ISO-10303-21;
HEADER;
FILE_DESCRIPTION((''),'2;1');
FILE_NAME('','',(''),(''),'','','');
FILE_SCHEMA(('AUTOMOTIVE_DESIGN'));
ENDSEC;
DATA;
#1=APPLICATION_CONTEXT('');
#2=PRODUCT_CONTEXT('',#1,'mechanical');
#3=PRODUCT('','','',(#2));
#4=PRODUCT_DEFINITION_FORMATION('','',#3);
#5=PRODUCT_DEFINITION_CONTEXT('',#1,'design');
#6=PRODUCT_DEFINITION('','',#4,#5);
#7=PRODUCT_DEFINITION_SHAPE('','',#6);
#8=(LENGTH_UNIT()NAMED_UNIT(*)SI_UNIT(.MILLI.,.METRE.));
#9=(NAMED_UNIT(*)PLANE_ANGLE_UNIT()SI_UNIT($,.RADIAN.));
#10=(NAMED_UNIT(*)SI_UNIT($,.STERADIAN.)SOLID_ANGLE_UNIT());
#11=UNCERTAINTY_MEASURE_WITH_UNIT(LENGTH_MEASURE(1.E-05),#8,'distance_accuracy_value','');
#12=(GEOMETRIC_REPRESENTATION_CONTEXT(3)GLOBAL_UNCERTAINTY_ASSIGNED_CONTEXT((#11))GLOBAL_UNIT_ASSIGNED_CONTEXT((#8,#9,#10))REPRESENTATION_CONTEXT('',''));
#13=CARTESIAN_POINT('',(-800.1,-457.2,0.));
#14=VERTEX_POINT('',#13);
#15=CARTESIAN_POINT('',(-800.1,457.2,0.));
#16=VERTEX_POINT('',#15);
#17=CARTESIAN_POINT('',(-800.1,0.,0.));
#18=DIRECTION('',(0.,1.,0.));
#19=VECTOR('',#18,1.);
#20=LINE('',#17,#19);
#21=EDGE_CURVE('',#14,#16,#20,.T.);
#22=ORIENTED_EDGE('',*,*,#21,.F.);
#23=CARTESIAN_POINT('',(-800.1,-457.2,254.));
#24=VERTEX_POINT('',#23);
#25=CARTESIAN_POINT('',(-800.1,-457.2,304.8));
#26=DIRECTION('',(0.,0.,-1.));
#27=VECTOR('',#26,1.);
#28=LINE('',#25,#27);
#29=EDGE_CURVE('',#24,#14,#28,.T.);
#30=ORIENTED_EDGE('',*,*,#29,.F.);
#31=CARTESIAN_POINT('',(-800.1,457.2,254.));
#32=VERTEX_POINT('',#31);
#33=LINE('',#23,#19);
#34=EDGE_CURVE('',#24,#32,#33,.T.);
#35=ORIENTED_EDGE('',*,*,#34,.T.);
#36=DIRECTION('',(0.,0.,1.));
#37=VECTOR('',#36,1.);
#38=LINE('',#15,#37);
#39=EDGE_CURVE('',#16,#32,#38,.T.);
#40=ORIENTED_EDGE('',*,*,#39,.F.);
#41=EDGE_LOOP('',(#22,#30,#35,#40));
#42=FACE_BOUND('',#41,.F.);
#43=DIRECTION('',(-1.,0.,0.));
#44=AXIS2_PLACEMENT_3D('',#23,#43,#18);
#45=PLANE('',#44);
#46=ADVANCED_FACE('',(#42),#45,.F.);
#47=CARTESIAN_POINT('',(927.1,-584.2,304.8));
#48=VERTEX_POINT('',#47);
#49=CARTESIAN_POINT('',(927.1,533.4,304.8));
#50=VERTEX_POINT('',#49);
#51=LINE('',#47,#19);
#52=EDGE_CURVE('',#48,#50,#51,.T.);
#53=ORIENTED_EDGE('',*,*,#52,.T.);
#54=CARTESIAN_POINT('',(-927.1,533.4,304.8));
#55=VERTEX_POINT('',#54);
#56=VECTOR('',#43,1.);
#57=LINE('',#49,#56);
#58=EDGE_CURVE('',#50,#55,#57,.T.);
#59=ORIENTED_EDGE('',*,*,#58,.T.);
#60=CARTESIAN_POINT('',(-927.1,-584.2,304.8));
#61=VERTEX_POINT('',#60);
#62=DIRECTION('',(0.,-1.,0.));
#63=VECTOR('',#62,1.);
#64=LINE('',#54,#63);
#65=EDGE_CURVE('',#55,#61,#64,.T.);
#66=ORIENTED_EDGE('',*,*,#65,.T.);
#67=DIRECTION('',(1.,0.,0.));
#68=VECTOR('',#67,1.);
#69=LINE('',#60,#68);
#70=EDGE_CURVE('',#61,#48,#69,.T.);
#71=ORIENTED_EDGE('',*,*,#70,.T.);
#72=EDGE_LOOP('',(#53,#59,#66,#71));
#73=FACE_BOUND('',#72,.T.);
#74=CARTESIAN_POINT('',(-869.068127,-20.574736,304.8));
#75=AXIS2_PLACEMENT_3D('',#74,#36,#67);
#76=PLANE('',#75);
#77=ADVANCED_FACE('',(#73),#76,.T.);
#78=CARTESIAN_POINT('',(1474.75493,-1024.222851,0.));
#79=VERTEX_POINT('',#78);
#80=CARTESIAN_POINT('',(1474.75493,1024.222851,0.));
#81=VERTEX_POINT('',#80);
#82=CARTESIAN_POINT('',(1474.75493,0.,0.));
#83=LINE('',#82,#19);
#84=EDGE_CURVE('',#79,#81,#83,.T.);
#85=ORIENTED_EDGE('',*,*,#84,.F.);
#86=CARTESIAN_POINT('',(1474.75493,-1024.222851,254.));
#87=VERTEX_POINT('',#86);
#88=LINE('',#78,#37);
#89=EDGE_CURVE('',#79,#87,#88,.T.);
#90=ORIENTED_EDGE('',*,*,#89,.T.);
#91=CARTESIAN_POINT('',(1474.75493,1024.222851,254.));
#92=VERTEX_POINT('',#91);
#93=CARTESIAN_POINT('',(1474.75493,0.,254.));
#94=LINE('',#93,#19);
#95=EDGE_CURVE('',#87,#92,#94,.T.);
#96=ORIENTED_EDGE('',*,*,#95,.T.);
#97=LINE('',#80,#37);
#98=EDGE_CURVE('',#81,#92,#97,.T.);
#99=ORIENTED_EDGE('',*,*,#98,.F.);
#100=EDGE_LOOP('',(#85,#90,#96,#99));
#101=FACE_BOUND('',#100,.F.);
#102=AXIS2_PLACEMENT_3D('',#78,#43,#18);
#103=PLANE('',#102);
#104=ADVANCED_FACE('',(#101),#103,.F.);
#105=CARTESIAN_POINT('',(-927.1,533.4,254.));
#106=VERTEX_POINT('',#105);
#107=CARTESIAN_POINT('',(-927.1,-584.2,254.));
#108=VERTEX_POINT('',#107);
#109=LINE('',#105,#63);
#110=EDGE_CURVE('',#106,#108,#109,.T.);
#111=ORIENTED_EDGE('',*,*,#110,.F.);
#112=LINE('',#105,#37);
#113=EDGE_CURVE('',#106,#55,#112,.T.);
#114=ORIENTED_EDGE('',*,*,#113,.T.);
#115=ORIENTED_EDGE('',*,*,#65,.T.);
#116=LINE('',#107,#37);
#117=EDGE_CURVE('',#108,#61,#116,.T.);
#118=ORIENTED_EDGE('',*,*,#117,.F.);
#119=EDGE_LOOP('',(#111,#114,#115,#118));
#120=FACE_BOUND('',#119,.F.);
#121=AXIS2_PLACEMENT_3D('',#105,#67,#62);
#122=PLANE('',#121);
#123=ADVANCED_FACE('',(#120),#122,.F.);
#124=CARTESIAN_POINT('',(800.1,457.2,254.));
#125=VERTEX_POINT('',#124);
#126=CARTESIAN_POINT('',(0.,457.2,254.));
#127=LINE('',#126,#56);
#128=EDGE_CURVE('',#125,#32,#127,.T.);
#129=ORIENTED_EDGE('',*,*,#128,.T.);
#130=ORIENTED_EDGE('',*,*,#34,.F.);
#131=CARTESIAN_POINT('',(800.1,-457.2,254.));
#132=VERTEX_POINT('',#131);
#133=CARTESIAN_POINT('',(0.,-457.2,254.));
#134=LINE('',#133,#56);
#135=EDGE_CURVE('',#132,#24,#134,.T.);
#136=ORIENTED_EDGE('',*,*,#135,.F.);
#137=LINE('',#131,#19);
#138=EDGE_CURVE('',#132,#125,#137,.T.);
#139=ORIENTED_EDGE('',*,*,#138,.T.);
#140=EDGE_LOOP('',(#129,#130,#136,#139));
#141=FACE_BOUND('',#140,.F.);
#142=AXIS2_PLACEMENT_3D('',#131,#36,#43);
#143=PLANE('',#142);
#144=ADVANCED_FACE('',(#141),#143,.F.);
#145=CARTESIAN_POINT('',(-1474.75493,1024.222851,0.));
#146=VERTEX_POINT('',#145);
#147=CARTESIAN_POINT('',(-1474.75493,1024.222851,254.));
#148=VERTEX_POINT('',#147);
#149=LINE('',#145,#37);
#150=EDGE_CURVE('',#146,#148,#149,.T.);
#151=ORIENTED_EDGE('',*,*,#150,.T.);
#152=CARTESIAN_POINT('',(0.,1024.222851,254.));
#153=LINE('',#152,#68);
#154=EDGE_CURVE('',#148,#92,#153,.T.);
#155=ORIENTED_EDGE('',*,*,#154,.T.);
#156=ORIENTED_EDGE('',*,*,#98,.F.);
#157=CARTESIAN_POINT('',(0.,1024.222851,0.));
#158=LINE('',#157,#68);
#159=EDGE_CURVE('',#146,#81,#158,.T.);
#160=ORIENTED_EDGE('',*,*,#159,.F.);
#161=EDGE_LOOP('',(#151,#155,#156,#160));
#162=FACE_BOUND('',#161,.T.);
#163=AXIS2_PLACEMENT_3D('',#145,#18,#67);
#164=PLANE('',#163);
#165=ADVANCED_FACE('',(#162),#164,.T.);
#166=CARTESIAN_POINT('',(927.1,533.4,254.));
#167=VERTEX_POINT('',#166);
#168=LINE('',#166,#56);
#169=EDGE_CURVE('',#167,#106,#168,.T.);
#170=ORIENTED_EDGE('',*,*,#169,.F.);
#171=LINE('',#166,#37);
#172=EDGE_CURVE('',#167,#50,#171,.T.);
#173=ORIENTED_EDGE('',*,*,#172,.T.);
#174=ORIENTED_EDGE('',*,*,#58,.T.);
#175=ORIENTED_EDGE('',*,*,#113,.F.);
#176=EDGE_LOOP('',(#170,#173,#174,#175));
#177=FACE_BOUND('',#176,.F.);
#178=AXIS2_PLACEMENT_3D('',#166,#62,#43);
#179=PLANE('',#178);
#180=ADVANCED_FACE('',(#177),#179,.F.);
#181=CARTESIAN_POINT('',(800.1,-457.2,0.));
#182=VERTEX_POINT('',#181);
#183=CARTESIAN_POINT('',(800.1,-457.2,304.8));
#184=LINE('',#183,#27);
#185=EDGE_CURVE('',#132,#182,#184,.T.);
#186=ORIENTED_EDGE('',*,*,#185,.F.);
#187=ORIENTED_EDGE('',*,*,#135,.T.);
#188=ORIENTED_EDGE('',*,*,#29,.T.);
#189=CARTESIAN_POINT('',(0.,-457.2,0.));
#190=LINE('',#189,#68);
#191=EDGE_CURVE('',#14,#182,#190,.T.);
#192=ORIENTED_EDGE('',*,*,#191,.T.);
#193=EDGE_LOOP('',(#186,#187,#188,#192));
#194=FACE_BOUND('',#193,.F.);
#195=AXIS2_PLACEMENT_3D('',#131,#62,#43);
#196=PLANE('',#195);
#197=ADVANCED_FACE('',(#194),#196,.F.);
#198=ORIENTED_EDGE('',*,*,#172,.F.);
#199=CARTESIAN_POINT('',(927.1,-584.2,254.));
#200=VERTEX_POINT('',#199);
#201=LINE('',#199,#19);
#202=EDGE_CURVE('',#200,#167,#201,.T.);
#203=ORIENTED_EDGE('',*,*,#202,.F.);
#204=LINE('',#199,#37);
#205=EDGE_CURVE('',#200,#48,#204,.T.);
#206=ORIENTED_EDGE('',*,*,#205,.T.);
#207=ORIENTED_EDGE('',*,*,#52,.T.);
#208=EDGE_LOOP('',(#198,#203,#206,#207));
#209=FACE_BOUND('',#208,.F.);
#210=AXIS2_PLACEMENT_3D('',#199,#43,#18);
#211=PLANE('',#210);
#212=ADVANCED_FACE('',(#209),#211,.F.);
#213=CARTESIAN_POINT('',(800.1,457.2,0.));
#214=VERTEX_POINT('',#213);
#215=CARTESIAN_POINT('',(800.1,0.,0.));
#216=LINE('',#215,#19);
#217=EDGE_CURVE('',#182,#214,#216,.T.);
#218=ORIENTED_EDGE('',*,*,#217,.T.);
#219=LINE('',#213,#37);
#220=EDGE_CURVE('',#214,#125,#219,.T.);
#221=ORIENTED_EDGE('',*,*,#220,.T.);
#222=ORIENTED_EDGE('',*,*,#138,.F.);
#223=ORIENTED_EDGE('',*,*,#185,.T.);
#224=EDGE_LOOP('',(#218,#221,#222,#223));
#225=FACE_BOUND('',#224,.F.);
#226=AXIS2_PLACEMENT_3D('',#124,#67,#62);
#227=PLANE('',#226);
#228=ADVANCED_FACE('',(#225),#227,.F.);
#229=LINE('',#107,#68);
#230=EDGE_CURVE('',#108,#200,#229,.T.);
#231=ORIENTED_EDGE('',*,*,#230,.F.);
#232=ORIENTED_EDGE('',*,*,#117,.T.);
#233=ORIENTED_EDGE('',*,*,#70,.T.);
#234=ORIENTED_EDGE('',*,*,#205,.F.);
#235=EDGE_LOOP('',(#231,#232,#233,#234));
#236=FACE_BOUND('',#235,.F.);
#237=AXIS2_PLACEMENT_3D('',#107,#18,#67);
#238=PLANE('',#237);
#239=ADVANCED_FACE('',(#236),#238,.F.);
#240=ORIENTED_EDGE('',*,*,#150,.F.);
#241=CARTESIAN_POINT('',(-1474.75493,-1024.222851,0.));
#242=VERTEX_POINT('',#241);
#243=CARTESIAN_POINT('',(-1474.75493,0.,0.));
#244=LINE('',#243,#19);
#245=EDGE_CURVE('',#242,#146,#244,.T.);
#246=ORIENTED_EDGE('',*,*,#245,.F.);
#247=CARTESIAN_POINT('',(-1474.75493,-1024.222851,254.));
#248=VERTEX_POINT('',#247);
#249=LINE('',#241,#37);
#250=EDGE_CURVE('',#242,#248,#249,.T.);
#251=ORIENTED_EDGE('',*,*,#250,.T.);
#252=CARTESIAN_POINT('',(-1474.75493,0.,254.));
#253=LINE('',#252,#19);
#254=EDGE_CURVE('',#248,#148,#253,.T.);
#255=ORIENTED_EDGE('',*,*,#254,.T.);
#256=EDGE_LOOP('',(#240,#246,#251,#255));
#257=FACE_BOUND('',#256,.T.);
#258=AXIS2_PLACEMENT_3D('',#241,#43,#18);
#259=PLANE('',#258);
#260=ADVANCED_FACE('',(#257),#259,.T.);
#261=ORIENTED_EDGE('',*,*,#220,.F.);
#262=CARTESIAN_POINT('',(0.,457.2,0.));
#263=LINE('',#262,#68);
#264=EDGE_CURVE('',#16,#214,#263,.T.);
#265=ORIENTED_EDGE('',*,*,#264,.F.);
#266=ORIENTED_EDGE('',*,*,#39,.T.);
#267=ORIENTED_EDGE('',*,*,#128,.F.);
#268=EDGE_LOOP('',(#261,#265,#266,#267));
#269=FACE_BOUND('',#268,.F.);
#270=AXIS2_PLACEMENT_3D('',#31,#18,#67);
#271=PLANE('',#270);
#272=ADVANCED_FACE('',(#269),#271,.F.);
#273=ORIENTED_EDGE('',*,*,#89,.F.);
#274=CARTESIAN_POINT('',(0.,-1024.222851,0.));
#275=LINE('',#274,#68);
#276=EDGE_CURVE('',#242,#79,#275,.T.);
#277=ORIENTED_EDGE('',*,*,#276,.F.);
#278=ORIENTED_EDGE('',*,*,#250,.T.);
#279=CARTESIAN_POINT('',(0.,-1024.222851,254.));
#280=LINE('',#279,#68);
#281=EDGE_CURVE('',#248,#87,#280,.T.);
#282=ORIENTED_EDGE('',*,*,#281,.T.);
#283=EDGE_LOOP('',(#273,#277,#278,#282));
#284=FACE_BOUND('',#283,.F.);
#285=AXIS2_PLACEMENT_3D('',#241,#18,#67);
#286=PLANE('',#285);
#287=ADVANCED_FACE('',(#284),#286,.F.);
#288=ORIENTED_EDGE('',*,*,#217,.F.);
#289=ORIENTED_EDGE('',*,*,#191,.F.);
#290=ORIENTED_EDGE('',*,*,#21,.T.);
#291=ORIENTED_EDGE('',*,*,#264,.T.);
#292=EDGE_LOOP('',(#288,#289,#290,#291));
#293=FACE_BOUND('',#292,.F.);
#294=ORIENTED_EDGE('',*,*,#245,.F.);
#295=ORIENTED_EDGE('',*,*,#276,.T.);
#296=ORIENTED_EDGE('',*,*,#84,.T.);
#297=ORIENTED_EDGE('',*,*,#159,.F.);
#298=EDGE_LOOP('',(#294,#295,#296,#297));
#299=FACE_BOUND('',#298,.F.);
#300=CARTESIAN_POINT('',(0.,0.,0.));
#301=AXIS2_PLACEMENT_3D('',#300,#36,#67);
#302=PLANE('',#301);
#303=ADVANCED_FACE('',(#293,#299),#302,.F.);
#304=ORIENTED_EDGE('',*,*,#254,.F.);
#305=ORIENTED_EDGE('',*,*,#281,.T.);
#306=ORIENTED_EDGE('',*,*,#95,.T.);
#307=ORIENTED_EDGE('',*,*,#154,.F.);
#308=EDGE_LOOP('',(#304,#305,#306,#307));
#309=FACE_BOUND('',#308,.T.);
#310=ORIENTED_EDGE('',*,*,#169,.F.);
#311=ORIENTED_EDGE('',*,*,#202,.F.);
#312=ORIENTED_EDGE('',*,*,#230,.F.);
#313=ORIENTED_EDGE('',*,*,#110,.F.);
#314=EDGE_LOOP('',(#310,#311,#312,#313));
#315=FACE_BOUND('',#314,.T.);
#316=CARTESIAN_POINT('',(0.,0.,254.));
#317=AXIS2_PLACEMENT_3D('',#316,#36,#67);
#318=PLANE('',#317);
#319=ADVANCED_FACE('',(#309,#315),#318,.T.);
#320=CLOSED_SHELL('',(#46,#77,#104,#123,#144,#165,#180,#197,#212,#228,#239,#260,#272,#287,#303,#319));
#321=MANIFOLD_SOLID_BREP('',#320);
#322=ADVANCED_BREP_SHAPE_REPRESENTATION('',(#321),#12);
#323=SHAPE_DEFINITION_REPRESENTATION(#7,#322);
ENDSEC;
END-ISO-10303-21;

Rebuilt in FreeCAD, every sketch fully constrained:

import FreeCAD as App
import Part
import Sketcher

V = App.Vector
Q = App.Units.Quantity


def add_polygon(sketch, points):
    """Adds a closed chain of lines whose ends are joined by coincident constraints."""
    first, n = sketch.GeometryCount, len(points)
    for a, b in zip(points, points[1:] + points[:1]):
        sketch.addGeometry(Part.LineSegment(App.Vector(*a, 0), App.Vector(*b, 0)), False)
    for i in range(n):
        sketch.addConstraint(Sketcher.Constraint("Coincident", first + i, 2, first + (i + 1) % n, 1))

doc = App.newDocument("Part")
body = doc.addObject("PartDesign::Body", "Body")

# Sketch on XY plane
sketch1 = body.newObject("Sketcher::SketchObject", "Sketch")
sketch1.AttachmentSupport = (doc.getObject("XY_Plane"), [""])
sketch1.MapMode = "FlatFace"
add_polygon(sketch1, [(-1475, 1024), (-1475, -1024), (1475, -1024), (1475, 1024)])  # lines 0-3
add_polygon(sketch1, [(800, -457), (-800, -457), (-800, 457), (800, 457)])  # lines 4-7
sketch1.addConstraint([
    Sketcher.Constraint("Vertical", 0),
    Sketcher.Constraint("Horizontal", 1),
    Sketcher.Constraint("Vertical", 2),
    Sketcher.Constraint("Horizontal", 3),
    Sketcher.Constraint("Horizontal", 4),
    Sketcher.Constraint("Vertical", 5),
    Sketcher.Constraint("Horizontal", 6),
    Sketcher.Constraint("Vertical", 7),
    Sketcher.Constraint("Symmetric", 0, 2, 2, 2, -1, 1),
    Sketcher.Constraint("Symmetric", 4, 2, 6, 2, -1, 1),
    Sketcher.Constraint("DistanceX", 4, 2, 4, 1, Q("63 in")),
    Sketcher.Constraint("DistanceY", 5, 1, 5, 2, Q("36 in")),
    Sketcher.Constraint("DistanceY", 0, 2, 0, 1, Q("2048.445702 mm")),
    Sketcher.Constraint("DistanceX", 1, 1, 1, 2, Q("2949.509859 mm")),
])
pad1 = body.newObject("PartDesign::Pad", "Pad")
pad1.Profile = sketch1
pad1.Length = Q("10 in")

# Sketch on XY plane
sketch2 = body.newObject("Sketcher::SketchObject", "Sketch001")
sketch2.AttachmentSupport = (doc.getObject("XY_Plane"), [""])
sketch2.MapMode = "FlatFace"
sketch2.AttachmentOffset = App.Placement(V(0, 0, 10 * 25.4), App.Rotation())
add_polygon(sketch2, [(927, -584), (927, 533), (-927, 533), (-927, -584)])  # lines 0-3
add_polygon(sketch2, [(-800, -457), (-800, 457), (800, 457), (800, -457)])  # lines 4-7
sketch2.addConstraint([
    Sketcher.Constraint("Vertical", 0),
    Sketcher.Constraint("Horizontal", 1),
    Sketcher.Constraint("Vertical", 2),
    Sketcher.Constraint("Horizontal", 3),
    Sketcher.Constraint("Vertical", 4),
    Sketcher.Constraint("Horizontal", 5),
    Sketcher.Constraint("Vertical", 6),
    Sketcher.Constraint("Horizontal", 7),
    Sketcher.Constraint("Symmetric", 4, 2, 6, 2, -1, 1),
    Sketcher.Constraint("DistanceX", 1, 2, 1, 1, Q("73 in")),
    Sketcher.Constraint("DistanceX", 5, 1, 5, 2, Q("63 in")),
    Sketcher.Constraint("DistanceY", 0, 1, 0, 2, Q("44 in")),
    Sketcher.Constraint("DistanceY", 4, 1, 4, 2, Q("36 in")),
    Sketcher.Constraint("DistanceY", -1, 1, 0, 2, Q("21 in")),
    Sketcher.Constraint("DistanceX", 1, 2, 4, 2, Q("5 in")),
])
pad2 = body.newObject("PartDesign::Pad", "Pad001")
pad2.Profile = sketch2
pad2.Length = Q("2 in")

# Sketch on XZ plane
sketch3 = body.newObject("Sketcher::SketchObject", "Sketch002")
sketch3.AttachmentSupport = (doc.getObject("XZ_Plane"), [""])
sketch3.MapMode = "FlatFace"
sketch3.AttachmentOffset = App.Placement(V(0, 0, 18 * 25.4), App.Rotation())
add_polygon(sketch3, [(800, 305), (800, 254), (-800, 254), (-800, 305)])  # lines 0-3
sketch3.addConstraint([
    Sketcher.Constraint("Vertical", 0),
    Sketcher.Constraint("Horizontal", 1),
    Sketcher.Constraint("Vertical", 2),
    Sketcher.Constraint("Horizontal", 3),
    Sketcher.Constraint("DistanceX", 1, 2, 1, 1, Q("63 in")),
    Sketcher.Constraint("DistanceY", 0, 2, 0, 1, Q("2 in")),
    Sketcher.Constraint("DistanceY", -1, 1, 0, 2, Q("10 in")),
    Sketcher.Constraint("DistanceX", -1, 1, 0, 2, Q("31.5 in")),
])
pad3 = body.newObject("PartDesign::Pad", "Pad002")
pad3.Profile = sketch3
pad3.Type = "UpToLast"
pad3.Reversed = True

doc.recompute()
